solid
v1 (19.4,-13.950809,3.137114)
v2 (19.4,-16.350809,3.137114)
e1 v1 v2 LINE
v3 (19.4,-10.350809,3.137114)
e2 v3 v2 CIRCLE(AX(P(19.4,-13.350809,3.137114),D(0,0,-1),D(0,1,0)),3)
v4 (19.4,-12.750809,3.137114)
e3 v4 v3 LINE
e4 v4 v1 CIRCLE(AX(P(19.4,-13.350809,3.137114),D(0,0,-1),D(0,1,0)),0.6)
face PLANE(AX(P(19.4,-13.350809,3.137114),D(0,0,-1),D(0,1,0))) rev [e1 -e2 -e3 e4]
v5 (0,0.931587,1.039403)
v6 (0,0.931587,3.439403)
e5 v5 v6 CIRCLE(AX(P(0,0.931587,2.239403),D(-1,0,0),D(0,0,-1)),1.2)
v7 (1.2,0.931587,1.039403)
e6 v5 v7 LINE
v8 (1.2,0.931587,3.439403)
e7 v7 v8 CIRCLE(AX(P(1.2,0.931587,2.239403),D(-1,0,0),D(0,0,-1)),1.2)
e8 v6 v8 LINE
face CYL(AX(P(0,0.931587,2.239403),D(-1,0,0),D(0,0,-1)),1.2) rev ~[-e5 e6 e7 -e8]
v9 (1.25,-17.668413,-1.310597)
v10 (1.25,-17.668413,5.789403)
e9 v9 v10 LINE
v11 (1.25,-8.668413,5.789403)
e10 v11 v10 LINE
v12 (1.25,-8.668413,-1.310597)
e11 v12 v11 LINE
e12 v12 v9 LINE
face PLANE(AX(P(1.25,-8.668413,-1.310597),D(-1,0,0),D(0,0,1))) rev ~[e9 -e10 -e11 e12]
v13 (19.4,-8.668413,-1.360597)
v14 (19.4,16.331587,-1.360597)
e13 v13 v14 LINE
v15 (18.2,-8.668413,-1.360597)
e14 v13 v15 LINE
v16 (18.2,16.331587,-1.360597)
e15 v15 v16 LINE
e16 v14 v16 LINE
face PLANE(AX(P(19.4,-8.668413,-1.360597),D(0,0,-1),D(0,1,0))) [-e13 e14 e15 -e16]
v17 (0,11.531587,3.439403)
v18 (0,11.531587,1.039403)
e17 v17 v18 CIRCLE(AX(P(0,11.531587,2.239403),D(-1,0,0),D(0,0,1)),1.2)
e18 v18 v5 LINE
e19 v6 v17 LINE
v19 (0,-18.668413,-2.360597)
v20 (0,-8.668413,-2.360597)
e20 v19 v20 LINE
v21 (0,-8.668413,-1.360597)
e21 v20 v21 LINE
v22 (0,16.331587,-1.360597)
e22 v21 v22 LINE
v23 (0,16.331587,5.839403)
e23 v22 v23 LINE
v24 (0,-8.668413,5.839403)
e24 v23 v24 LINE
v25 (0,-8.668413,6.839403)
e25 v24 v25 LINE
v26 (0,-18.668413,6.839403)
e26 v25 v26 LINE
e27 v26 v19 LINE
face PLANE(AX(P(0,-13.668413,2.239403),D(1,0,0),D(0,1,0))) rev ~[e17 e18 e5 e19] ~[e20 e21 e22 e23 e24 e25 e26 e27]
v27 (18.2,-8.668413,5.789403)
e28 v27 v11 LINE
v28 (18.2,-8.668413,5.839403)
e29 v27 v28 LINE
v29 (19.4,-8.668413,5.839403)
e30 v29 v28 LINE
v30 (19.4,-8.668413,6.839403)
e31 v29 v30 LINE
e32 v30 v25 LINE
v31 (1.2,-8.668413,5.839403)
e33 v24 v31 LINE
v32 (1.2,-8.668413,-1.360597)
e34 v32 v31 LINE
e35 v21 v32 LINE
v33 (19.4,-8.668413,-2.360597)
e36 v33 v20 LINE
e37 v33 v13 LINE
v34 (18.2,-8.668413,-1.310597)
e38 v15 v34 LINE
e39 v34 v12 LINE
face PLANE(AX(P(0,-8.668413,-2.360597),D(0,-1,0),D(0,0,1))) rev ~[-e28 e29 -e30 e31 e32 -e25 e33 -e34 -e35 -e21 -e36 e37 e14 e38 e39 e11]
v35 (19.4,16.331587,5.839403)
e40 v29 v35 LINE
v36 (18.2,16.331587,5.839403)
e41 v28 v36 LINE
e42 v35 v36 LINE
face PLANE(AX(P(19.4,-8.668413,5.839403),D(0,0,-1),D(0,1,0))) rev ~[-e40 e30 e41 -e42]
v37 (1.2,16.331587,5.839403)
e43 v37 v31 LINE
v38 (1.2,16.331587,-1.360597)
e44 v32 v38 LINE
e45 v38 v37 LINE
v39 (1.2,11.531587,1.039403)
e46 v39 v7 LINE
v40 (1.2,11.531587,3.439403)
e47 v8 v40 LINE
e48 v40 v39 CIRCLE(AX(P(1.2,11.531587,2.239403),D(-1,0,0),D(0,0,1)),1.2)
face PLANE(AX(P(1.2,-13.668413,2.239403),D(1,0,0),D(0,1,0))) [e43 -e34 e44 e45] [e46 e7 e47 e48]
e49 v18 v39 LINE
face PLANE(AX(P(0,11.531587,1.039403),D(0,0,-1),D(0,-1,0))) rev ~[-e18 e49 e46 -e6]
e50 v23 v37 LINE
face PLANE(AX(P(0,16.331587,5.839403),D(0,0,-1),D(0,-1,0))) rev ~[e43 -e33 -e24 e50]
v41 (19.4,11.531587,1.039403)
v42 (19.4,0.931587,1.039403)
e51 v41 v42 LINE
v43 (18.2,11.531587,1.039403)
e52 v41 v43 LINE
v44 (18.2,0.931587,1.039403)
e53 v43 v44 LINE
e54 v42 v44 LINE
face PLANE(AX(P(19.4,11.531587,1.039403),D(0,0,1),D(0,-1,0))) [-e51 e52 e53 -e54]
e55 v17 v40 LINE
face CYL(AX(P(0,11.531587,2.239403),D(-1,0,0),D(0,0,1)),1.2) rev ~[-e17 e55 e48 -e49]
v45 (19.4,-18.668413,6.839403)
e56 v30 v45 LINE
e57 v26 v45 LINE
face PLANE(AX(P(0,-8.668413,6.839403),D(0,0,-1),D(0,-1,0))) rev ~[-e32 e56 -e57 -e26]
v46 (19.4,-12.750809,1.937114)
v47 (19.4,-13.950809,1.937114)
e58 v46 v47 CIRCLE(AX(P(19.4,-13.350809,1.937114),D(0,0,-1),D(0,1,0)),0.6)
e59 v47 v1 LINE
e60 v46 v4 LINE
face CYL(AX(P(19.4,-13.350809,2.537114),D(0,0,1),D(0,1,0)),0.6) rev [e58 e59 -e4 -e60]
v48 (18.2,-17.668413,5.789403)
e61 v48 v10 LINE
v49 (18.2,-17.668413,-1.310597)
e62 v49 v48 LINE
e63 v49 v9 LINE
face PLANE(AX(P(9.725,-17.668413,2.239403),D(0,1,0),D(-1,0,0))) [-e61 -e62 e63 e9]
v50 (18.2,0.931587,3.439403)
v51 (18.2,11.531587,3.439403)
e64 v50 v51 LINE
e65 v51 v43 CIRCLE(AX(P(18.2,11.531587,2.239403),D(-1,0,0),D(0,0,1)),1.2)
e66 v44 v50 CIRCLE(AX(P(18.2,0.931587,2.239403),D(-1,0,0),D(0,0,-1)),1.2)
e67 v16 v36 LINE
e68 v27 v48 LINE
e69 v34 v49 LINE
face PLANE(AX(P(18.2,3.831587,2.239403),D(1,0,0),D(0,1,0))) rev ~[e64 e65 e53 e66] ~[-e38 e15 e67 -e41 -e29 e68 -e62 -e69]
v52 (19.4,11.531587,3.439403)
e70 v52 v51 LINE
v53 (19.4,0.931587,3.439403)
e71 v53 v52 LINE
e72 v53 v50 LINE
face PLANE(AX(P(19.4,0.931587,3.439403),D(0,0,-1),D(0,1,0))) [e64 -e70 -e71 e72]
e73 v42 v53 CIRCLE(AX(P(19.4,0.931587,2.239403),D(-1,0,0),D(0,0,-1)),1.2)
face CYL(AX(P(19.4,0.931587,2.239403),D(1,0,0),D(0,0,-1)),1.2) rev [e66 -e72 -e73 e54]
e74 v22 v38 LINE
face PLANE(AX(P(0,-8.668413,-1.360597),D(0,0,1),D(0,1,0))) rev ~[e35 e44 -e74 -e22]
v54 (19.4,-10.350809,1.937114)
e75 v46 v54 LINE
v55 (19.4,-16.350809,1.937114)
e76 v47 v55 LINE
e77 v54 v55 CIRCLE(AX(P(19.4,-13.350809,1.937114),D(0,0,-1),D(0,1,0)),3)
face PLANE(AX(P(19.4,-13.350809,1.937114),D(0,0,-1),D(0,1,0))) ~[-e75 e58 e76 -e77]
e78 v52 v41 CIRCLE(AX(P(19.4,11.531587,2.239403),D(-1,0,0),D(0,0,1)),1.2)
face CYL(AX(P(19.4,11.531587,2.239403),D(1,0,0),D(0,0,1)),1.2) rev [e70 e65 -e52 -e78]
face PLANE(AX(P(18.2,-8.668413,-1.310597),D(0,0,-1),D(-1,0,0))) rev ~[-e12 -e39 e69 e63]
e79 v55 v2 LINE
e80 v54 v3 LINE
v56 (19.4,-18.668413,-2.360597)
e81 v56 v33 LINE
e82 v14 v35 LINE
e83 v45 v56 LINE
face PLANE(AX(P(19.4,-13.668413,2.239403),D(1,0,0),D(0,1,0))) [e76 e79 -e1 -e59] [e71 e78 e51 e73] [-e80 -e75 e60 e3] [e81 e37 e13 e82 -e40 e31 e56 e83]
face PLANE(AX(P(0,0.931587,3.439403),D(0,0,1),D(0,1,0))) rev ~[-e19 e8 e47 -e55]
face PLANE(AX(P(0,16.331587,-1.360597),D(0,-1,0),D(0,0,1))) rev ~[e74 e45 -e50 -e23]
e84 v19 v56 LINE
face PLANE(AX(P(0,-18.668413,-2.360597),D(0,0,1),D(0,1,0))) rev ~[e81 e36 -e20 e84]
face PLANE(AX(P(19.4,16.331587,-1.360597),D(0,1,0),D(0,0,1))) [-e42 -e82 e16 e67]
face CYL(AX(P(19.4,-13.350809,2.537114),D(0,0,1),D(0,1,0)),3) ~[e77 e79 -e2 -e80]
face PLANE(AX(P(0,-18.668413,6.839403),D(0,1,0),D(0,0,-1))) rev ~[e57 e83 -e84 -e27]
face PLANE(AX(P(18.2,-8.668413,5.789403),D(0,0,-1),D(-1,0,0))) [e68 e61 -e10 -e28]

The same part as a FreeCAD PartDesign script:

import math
import FreeCAD as App
import Part
import Sketcher

V = App.Vector

doc = App.newDocument("Part")
body = doc.addObject("PartDesign::Body", "Body")

# Sketch on YZ plane
sketch1 = body.newObject("Sketcher::SketchObject", "Sketch")
sketch1.AttachmentSupport = (doc.getObject("YZ_Plane"), [""])
sketch1.MapMode = "FlatFace"
sketch1.addGeometry([
    Part.LineSegment(V(-8.668413, 6.839403, 0), V(-18.668413, 6.839403, 0)),
    Part.LineSegment(V(-18.668413, 6.839403, 0), V(-18.668413, -2.360597, 0)),
    Part.LineSegment(V(-18.668413, -2.360597, 0), V(-8.668413, -2.360597, 0)),
    Part.LineSegment(V(-8.668413, -2.360597, 0), V(-8.668413, 6.839403, 0)),
], False)
sketch1.addConstraint([
    Sketcher.Constraint("Coincident", 0, 2, 1, 1),
    Sketcher.Constraint("Coincident", 1, 2, 2, 1),
    Sketcher.Constraint("Coincident", 2, 2, 3, 1),
    Sketcher.Constraint("Coincident", 3, 2, 0, 1),
    Sketcher.Constraint("Horizontal", 0),
    Sketcher.Constraint("Vertical", 1),
    Sketcher.Constraint("Horizontal", 2),
    Sketcher.Constraint("Vertical", 3),
    Sketcher.Constraint("DistanceX", 0, 2, 0, 1, 10.0),
    Sketcher.Constraint("DistanceY", 1, 2, 1, 1, 9.2),
    Sketcher.Constraint("DistanceX", 0, 2, -1, 1, 18.668413),
    Sketcher.Constraint("DistanceY", -1, 1, 0, 2, 6.839403),
])
pad1 = body.newObject("PartDesign::Pad", "Pad")
pad1.Profile = sketch1
pad1.Length = 19.4

# Sketch on YZ plane
sketch2 = body.newObject("Sketcher::SketchObject", "Sketch001")
sketch2.AttachmentSupport = (doc.getObject("YZ_Plane"), [""])
sketch2.MapMode = "FlatFace"
sketch2.addGeometry([
    Part.LineSegment(V(-8.668413, 6.839403, 0), V(-18.668413, 6.839403, 0)),  # 0
    Part.LineSegment(V(-18.668413, 6.839403, 0), V(-18.668413, -2.360597, 0)),  # 1
    Part.LineSegment(V(-18.668413, -2.360597, 0), V(-8.668413, -2.360597, 0)),  # 2
    Part.LineSegment(V(-8.668413, -2.360597, 0), V(-8.668413, -1.360597, 0)),  # 3
    Part.LineSegment(V(-8.668413, -1.360597, 0), V(16.331587, -1.360597, 0)),  # 4
    Part.LineSegment(V(16.331587, -1.360597, 0), V(16.331587, 5.839403, 0)),  # 5
    Part.LineSegment(V(16.331587, 5.839403, 0), V(-8.668413, 5.839403, 0)),  # 6
    Part.LineSegment(V(-8.668413, 5.839403, 0), V(-8.668413, 6.839403, 0)),  # 7
    Part.LineSegment(V(0.931587, 3.439403, 0), V(11.531587, 3.439403, 0)),  # 8
    Part.ArcOfCircle(Part.Circle(V(11.531587, 2.239403, 0), V(0, 0, 1), 1.2), math.radians(-90), math.radians(90)),  # 9
    Part.LineSegment(V(11.531587, 1.039403, 0), V(0.931587, 1.039403, 0)),  # 10
    Part.ArcOfCircle(Part.Circle(V(0.931587, 2.239403, 0), V(0, 0, 1), 1.2), math.radians(90), math.radians(270)),  # 11
], False)
sketch2.addConstraint([
    Sketcher.Constraint("Coincident", 0, 2, 1, 1),
    Sketcher.Constraint("Coincident", 1, 2, 2, 1),
    Sketcher.Constraint("Coincident", 2, 2, 3, 1),
    Sketcher.Constraint("Coincident", 3, 2, 4, 1),
    Sketcher.Constraint("Coincident", 4, 2, 5, 1),
    Sketcher.Constraint("Coincident", 5, 2, 6, 1),
    Sketcher.Constraint("Coincident", 6, 2, 7, 1),
    Sketcher.Constraint("Coincident", 7, 2, 0, 1),
    Sketcher.Constraint("Tangent", 8, 2, 9, 2),
    Sketcher.Constraint("Tangent", 9, 1, 10, 1),
    Sketcher.Constraint("Tangent", 10, 2, 11, 2),
    Sketcher.Constraint("Tangent", 11, 1, 8, 1),
    Sketcher.Constraint("Horizontal", 0),
    Sketcher.Constraint("Vertical", 1),
    Sketcher.Constraint("Horizontal", 2),
    Sketcher.Constraint("Vertical", 3),
    Sketcher.Constraint("Horizontal", 4),
    Sketcher.Constraint("Vertical", 5),
    Sketcher.Constraint("Horizontal", 6),
    Sketcher.Constraint("Vertical", 7),
    Sketcher.Constraint("Horizontal", 8),
    Sketcher.Constraint("Horizontal", 10),
    Sketcher.Constraint("Vertical", 3, 2, 6, 2),
    Sketcher.Constraint("Equal", 3, 7),
    Sketcher.Constraint("Radius", 9, 1.2),
    Sketcher.Constraint("DistanceX", 0, 2, 0, 1, 10.0),
    Sketcher.Constraint("DistanceX", 4, 1, 4, 2, 25.0),
    Sketcher.Constraint("DistanceY", 3, 1, 3, 2, 1.0),
    Sketcher.Constraint("DistanceX", 8, 1, 8, 2, 10.6),
    Sketcher.Constraint("DistanceY", 1, 2, 1, 1, 9.2),
    Sketcher.Constraint("DistanceX", 0, 2, 11, 3, 19.6),
    Sketcher.Constraint("DistanceY", 11, 3, 0, 2, 4.6),
    Sketcher.Constraint("DistanceX", -1, 1, 9, 3, 11.531587),
    Sketcher.Constraint("DistanceY", -1, 1, 9, 3, 2.239403),
])
pad2 = body.newObject("PartDesign::Pad", "Pad001")
pad2.Profile = sketch2
pad2.Length = 1.2

# Sketch on YZ plane
sketch3 = body.newObject("Sketcher::SketchObject", "Sketch002")
sketch3.AttachmentSupport = (doc.getObject("YZ_Plane"), [""])
sketch3.MapMode = "FlatFace"
sketch3.AttachmentOffset = App.Placement(V(0, 0, 19.4), App.Rotation())
sketch3.addGeometry([
    Part.LineSegment(V(-8.668413, 5.839403, 0), V(-8.668413, -1.360597, 0)),  # 0
    Part.LineSegment(V(-8.668413, -1.360597, 0), V(16.331587, -1.360597, 0)),  # 1
    Part.LineSegment(V(16.331587, -1.360597, 0), V(16.331587, 5.839403, 0)),  # 2
    Part.LineSegment(V(16.331587, 5.839403, 0), V(-8.668413, 5.839403, 0)),  # 3
    Part.LineSegment(V(0.931587, 3.439403, 0), V(11.531587, 3.439403, 0)),  # 4
    Part.ArcOfCircle(Part.Circle(V(11.531587, 2.239403, 0), V(0, 0, 1), 1.2), math.radians(-90), math.radians(90)),  # 5
    Part.LineSegment(V(11.531587, 1.039403, 0), V(0.931587, 1.039403, 0)),  # 6
    Part.ArcOfCircle(Part.Circle(V(0.931587, 2.239403, 0), V(0, 0, 1), 1.2), math.radians(90), math.radians(270)),  # 7
], False)
sketch3.addConstraint([
    Sketcher.Constraint("Coincident", 0, 2, 1, 1),
    Sketcher.Constraint("Coincident", 1, 2, 2, 1),
    Sketcher.Constraint("Coincident", 2, 2, 3, 1),
    Sketcher.Constraint("Coincident", 3, 2, 0, 1),
    Sketcher.Constraint("Tangent", 4, 2, 5, 2),
    Sketcher.Constraint("Tangent", 5, 1, 6, 1),
    Sketcher.Constraint("Tangent", 6, 2, 7, 2),
    Sketcher.Constraint("Tangent", 7, 1, 4, 1),
    Sketcher.Constraint("Vertical", 0),
    Sketcher.Constraint("Horizontal", 1),
    Sketcher.Constraint("Vertical", 2),
    Sketcher.Constraint("Horizontal", 3),
    Sketcher.Constraint("Horizontal", 4),
    Sketcher.Constraint("Horizontal", 6),
    Sketcher.Constraint("Radius", 5, 1.2),
    Sketcher.Constraint("DistanceX", 1, 1, 1, 2, 25.0),
    Sketcher.Constraint("DistanceX", 4, 1, 4, 2, 10.6),
    Sketcher.Constraint("DistanceY", 0, 2, 0, 1, 7.2),
    Sketcher.Constraint("DistanceX", 0, 2, 7, 3, 9.6),
    Sketcher.Constraint("DistanceY", 0, 2, 7, 3, 3.6),
    Sketcher.Constraint("DistanceX", -1, 1, 5, 3, 11.531587),
    Sketcher.Constraint("DistanceY", -1, 1, 5, 3, 2.239403),
])
pad3 = body.newObject("PartDesign::Pad", "Pad002")
pad3.Profile = sketch3
pad3.Length = 1.2
pad3.Reversed = True

# Sketch on XZ plane
sketch4 = body.newObject("Sketcher::SketchObject", "Sketch003")
sketch4.AttachmentSupport = (doc.getObject("XZ_Plane"), [""])
sketch4.MapMode = "FlatFace"
sketch4.AttachmentOffset = App.Placement(V(0, 0, 8.668413), App.Rotation())
sketch4.addGeometry([
    Part.LineSegment(V(18.2, 5.789403, 0), V(18.2, -1.310597, 0)),
    Part.LineSegment(V(18.2, -1.310597, 0), V(1.25, -1.310597, 0)),
    Part.LineSegment(V(1.25, -1.310597, 0), V(1.25, 5.789403, 0)),
    Part.LineSegment(V(1.25, 5.789403, 0), V(18.2, 5.789403, 0)),
], False)
sketch4.addConstraint([
    Sketcher.Constraint("Coincident", 0, 2, 1, 1),
    Sketcher.Constraint("Coincident", 1, 2, 2, 1),
    Sketcher.Constraint("Coincident", 2, 2, 3, 1),
    Sketcher.Constraint("Coincident", 3, 2, 0, 1),
    Sketcher.Constraint("Vertical", 0),
    Sketcher.Constraint("Horizontal", 1),
    Sketcher.Constraint("Vertical", 2),
    Sketcher.Constraint("Horizontal", 3),
    Sketcher.Constraint("DistanceY", 0, 2, 0, 1, 7.1),
    Sketcher.Constraint("DistanceX", 1, 2, 1, 1, 16.95),
    Sketcher.Constraint("DistanceX", -1, 1, 0, 2, 18.2),
    Sketcher.Constraint("DistanceY", 0, 2, -1, 1, 1.310597),
])
pocket1 = body.newObject("PartDesign::Pocket", "Pocket")
pocket1.Profile = sketch4
pocket1.Length = 9
pocket1.Reversed = True

# Sketch on YZ plane
sketch5 = body.newObject("Sketcher::SketchObject", "Sketch004")
sketch5.AttachmentSupport = (doc.getObject("YZ_Plane"), [""])
sketch5.MapMode = "FlatFace"
sketch5.AttachmentOffset = App.Placement(V(0, 0, 19.4), App.Rotation())
sketch5.addGeometry([
    Part.LineSegment(V(-12.750809, 3.137114, 0), V(-12.750809, 1.937114, 0)),
    Part.LineSegment(V(-12.750809, 1.937114, 0), V(-10.350809, 1.937114, 0)),
    Part.LineSegment(V(-10.350809, 1.937114, 0), V(-10.350809, 3.137114, 0)),
    Part.LineSegment(V(-10.350809, 3.137114, 0), V(-12.750809, 3.137114, 0)),
], False)
sketch5.addGeometry(Part.LineSegment(V(-13.350809, 3.137114, 0), V(-13.350809, 1.937114, 0)), True)  # axis
sketch5.addConstraint([
    Sketcher.Constraint("Coincident", 0, 2, 1, 1),
    Sketcher.Constraint("Coincident", 1, 2, 2, 1),
    Sketcher.Constraint("Coincident", 2, 2, 3, 1),
    Sketcher.Constraint("Coincident", 3, 2, 0, 1),
    Sketcher.Constraint("Vertical", 0),
    Sketcher.Constraint("Horizontal", 1),
    Sketcher.Constraint("Vertical", 2),
    Sketcher.Constraint("Horizontal", 3),
    Sketcher.Constraint("Vertical", 4),
    Sketcher.Constraint("Horizontal", 3, 2, 4, 1),
    Sketcher.Constraint("Horizontal", 1, 2, 4, 2),
    Sketcher.Constraint("DistanceX", 1, 1, 1, 2, 2.4),
    Sketcher.Constraint("DistanceY", 0, 2, 0, 1, 1.2),
    Sketcher.Constraint("DistanceX", 4, 1, 2, 2, 3.0),
    Sketcher.Constraint("DistanceX", 0, 2, -1, 1, 12.750809),
    Sketcher.Constraint("DistanceY", -1, 1, 0, 2, 1.937114),
])
revolution = body.newObject("PartDesign::Revolution", "Revolution")
revolution.Profile = sketch5
revolution.ReferenceAxis = (sketch5, ["Axis0"])
revolution.Angle = 180

doc.recompute()
